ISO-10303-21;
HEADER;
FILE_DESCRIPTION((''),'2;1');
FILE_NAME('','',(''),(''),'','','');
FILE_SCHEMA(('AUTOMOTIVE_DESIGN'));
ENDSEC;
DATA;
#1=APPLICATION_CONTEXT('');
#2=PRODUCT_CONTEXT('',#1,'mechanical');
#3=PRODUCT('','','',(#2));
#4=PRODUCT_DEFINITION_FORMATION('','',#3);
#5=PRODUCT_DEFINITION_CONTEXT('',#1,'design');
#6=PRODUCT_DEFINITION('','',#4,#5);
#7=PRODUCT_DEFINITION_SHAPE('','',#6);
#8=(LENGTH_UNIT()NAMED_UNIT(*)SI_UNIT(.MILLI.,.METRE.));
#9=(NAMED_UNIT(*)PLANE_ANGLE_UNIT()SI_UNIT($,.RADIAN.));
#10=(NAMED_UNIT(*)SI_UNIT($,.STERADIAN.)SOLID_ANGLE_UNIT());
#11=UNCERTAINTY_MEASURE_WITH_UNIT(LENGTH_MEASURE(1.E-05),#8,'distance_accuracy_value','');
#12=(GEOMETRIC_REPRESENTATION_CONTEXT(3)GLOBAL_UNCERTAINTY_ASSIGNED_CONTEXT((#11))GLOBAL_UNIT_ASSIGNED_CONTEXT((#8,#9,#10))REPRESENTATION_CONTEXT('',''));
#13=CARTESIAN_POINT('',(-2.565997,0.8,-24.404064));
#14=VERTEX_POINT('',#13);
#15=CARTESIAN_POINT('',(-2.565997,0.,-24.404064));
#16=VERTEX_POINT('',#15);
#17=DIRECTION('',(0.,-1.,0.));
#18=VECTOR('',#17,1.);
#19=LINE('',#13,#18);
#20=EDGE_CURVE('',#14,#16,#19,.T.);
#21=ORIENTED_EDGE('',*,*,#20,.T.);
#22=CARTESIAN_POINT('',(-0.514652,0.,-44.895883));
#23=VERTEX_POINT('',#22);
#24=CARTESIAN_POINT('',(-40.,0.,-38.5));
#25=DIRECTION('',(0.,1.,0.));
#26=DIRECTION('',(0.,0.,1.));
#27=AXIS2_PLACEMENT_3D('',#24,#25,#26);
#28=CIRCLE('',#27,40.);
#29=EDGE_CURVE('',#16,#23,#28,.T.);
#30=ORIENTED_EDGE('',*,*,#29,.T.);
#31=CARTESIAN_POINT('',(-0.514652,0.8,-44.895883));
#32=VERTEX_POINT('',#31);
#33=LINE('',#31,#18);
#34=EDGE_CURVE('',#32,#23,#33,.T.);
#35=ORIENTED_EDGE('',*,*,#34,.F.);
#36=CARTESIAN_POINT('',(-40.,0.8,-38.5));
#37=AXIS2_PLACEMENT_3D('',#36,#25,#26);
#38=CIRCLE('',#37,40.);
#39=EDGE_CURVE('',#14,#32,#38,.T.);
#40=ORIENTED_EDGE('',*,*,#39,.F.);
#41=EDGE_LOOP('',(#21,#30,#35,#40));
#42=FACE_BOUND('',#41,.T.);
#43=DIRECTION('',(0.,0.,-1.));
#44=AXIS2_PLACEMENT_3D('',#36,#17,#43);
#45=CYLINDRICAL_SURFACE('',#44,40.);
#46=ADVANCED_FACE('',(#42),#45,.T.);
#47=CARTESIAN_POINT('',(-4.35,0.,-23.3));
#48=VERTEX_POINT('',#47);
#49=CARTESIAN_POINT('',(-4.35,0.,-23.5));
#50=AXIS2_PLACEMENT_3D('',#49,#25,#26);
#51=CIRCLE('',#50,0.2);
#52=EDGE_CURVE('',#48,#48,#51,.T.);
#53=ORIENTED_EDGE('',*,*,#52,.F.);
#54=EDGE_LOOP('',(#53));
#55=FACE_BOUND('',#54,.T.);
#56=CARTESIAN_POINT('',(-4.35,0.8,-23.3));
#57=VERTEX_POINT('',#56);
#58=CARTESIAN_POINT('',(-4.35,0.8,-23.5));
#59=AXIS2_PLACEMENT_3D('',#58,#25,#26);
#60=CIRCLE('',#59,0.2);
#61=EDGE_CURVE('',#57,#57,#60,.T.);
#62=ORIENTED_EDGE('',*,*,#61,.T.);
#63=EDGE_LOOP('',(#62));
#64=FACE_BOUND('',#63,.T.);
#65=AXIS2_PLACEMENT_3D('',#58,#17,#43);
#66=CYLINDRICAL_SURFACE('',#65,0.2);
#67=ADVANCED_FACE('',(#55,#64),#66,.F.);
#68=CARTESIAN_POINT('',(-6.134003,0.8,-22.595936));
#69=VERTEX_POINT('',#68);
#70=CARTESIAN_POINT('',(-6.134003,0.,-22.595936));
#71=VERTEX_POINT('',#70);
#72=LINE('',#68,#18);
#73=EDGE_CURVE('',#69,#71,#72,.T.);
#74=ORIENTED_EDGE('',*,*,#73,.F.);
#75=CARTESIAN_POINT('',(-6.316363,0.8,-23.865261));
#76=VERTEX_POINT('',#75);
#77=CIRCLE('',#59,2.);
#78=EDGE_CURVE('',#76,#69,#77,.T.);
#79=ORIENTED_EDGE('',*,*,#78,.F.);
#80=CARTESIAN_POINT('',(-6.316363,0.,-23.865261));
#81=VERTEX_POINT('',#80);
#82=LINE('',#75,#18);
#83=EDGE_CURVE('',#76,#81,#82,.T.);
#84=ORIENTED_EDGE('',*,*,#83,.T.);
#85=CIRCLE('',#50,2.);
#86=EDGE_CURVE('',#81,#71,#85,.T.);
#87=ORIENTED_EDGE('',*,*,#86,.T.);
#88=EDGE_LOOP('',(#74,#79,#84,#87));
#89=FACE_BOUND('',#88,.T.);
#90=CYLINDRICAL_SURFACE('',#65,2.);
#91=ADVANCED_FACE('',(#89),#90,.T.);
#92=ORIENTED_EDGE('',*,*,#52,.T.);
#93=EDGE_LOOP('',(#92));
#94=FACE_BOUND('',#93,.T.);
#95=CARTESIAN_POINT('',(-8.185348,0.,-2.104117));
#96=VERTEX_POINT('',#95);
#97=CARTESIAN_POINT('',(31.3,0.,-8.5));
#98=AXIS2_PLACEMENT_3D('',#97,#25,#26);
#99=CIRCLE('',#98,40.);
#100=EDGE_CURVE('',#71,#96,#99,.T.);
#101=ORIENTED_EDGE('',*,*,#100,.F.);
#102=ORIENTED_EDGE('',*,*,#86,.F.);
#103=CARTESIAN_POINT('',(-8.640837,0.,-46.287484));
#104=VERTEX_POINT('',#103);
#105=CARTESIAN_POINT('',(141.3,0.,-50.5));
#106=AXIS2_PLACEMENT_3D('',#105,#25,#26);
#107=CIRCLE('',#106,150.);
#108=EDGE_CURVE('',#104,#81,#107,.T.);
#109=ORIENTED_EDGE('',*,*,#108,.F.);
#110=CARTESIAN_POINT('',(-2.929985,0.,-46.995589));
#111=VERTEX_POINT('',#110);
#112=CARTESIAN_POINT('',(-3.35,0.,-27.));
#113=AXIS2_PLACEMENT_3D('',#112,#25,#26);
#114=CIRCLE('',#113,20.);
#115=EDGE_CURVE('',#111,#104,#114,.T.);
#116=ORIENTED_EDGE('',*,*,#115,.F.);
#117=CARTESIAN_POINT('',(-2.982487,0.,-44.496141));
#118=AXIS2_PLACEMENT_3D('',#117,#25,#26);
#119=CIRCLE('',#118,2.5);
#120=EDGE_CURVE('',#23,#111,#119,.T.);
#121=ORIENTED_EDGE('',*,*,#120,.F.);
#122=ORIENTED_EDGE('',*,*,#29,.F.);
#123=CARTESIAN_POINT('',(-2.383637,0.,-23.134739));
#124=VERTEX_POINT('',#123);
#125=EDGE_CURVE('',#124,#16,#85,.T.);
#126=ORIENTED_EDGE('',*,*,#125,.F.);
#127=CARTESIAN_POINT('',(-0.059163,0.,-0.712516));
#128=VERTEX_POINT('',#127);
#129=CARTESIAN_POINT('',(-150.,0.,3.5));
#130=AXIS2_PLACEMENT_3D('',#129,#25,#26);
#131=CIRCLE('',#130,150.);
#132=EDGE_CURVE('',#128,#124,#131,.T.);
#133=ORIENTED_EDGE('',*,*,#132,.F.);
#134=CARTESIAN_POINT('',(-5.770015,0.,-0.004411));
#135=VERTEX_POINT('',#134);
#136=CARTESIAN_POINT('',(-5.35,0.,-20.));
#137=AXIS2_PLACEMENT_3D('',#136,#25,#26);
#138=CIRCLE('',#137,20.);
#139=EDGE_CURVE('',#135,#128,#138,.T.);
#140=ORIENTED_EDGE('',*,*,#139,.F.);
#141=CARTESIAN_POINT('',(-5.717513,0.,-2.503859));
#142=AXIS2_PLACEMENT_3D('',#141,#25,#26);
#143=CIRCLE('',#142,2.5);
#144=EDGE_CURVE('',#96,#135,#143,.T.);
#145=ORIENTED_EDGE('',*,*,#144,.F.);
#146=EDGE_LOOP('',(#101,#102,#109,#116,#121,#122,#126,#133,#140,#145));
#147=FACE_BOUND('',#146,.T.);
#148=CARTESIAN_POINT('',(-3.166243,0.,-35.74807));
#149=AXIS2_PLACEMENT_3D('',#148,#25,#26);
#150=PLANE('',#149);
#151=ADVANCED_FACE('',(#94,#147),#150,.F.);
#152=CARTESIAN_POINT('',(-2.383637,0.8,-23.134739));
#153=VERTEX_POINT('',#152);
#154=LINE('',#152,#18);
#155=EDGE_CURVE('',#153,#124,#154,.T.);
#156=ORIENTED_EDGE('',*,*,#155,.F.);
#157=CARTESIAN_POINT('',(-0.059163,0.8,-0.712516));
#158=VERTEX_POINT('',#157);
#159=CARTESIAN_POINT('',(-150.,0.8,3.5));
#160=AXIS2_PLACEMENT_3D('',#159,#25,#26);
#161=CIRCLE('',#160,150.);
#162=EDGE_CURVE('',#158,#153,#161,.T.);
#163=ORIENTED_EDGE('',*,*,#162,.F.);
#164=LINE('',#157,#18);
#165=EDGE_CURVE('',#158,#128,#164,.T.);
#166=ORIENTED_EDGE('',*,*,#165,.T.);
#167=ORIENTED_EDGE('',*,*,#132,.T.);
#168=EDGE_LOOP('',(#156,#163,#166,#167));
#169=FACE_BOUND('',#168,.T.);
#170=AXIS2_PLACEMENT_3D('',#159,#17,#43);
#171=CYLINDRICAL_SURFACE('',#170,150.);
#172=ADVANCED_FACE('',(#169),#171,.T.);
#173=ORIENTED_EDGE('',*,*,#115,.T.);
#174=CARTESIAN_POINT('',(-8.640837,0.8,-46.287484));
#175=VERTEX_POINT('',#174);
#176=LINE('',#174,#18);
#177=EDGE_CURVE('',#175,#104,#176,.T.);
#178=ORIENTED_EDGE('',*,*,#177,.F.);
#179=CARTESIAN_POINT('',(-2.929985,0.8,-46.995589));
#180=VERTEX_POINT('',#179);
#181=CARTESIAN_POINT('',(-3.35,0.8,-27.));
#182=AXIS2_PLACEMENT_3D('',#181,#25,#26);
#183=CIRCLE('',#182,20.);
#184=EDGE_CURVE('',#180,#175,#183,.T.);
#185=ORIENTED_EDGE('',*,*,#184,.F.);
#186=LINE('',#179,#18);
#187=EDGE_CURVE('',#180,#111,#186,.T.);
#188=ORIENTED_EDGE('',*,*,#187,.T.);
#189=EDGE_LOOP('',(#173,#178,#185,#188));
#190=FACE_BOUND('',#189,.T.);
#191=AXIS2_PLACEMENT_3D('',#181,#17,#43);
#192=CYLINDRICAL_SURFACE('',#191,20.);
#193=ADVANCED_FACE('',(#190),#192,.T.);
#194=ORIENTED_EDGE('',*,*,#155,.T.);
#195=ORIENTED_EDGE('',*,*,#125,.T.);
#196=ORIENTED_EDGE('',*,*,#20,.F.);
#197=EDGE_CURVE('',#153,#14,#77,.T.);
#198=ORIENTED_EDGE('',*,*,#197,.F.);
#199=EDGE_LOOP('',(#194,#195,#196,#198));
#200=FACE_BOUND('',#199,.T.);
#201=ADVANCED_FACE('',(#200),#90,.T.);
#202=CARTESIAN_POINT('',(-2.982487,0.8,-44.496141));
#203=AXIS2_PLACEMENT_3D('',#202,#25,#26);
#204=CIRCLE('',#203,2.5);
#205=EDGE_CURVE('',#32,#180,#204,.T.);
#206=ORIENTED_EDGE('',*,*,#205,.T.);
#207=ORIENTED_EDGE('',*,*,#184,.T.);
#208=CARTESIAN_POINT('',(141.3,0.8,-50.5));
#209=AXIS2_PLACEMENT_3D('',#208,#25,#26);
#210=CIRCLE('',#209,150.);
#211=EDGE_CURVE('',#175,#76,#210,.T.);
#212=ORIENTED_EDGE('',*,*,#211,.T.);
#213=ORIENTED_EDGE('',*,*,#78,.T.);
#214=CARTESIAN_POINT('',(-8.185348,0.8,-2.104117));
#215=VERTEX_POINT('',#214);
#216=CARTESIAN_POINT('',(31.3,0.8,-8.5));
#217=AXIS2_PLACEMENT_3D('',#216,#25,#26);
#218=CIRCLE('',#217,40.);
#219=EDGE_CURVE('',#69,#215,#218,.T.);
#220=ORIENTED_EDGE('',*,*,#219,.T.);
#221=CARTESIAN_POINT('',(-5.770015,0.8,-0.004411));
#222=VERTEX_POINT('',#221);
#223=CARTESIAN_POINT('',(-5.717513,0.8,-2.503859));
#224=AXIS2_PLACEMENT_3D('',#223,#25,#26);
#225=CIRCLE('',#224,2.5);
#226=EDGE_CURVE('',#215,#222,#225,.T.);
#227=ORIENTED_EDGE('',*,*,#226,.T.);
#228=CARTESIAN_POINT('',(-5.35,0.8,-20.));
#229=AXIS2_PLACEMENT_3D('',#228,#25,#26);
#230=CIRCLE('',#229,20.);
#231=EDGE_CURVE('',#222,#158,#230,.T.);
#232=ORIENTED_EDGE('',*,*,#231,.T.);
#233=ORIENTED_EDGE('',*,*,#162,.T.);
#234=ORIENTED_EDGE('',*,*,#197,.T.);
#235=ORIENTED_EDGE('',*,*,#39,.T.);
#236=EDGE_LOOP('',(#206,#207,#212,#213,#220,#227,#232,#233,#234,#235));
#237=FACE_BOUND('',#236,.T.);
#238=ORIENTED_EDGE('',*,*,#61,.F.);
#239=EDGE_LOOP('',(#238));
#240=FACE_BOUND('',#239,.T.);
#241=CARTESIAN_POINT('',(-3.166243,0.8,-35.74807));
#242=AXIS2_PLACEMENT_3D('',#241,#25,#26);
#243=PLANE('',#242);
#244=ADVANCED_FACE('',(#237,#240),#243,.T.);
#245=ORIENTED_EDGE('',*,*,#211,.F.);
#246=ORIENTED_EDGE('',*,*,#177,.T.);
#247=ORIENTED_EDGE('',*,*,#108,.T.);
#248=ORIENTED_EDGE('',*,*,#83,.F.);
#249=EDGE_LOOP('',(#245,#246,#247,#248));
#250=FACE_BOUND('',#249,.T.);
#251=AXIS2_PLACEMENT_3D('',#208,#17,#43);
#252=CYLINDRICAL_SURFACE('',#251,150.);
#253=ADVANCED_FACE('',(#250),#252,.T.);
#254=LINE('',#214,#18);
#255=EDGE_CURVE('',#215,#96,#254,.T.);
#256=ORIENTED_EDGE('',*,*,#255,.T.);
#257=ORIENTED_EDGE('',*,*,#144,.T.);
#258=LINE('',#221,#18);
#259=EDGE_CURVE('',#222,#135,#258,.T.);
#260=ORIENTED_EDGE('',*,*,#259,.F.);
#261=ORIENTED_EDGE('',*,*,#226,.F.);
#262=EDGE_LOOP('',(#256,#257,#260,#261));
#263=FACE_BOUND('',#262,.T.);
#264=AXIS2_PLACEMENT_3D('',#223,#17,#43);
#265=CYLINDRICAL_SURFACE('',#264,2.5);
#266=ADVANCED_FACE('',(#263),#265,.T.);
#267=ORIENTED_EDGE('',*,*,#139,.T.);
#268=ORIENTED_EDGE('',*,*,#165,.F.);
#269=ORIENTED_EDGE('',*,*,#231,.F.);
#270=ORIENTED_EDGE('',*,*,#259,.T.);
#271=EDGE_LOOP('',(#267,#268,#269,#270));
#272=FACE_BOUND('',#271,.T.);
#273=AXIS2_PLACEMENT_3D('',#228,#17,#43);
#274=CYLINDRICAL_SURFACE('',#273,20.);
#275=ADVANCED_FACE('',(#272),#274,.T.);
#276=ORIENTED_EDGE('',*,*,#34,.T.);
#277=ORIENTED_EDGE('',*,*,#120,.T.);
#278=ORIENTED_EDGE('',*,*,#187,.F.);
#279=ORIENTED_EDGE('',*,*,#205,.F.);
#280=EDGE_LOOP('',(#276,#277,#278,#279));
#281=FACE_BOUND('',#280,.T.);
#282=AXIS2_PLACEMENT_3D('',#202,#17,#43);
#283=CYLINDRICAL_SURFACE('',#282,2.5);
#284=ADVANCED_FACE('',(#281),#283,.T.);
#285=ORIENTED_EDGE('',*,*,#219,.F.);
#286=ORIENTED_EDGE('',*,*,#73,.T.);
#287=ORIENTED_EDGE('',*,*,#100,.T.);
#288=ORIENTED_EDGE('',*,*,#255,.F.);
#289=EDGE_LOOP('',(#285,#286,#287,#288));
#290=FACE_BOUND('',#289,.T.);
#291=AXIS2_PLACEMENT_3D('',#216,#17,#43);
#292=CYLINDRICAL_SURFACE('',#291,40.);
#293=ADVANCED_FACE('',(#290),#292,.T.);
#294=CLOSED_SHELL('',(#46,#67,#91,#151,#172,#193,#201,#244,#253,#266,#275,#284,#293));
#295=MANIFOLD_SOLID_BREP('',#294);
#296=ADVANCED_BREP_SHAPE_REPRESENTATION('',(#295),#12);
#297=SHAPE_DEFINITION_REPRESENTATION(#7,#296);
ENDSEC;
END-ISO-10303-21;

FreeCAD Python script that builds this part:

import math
import FreeCAD as App
import Part
import Sketcher
Q = App.Units.Quantity

doc = App.newDocument("Part")
body = doc.addObject("PartDesign::Body", "Body")

# Sketch on XZ plane
sketch1 = body.newObject("Sketcher::SketchObject", "Sketch")
sketch1.AttachmentSupport = (doc.getObject("XZ_Plane"), [""])
sketch1.MapMode = "FlatFace"
sketch1.addGeometry(Part.ArcOfCircle(Part.Circle(App.Vector(-4.35, -23.5, 0), App.Vector(0, 0, 1), 2), math.radians(-27), math.radians(11)), False)
sketch1.addGeometry(Part.ArcOfCircle(Part.Circle(App.Vector(-40, -38.5, 0), App.Vector(0, 0, 1), 40), math.radians(-9), math.radians(21)), False)
sketch1.addGeometry(Part.ArcOfCircle(Part.Circle(App.Vector(-2.98, -44.5, 0), App.Vector(0, 0, 1), 2.5), math.radians(-89), math.radians(-9)), False)
sketch1.addGeometry(Part.ArcOfCircle(Part.Circle(App.Vector(-3.35, -27, 0), App.Vector(0, 0, 1), 20), math.radians(-105.34), math.radians(-88.8)), False)
sketch1.addGeometry(Part.ArcOfCircle(Part.Circle(App.Vector(141.3, -50.5, 0), App.Vector(0, 0, 1), 150), math.radians(169.77), math.radians(178.39)), False)
sketch1.addGeometry(Part.ArcOfCircle(Part.Circle(App.Vector(-4.35, -23.5, 0), App.Vector(0, 0, 1), 2), math.radians(153), math.radians(191)), False)
sketch1.addGeometry(Part.ArcOfCircle(Part.Circle(App.Vector(31.3, -8.5, 0), App.Vector(0, 0, 1), 40), math.radians(171), math.radians(201)), False)
sketch1.addGeometry(Part.ArcOfCircle(Part.Circle(App.Vector(-5.72, -2.5, 0), App.Vector(0, 0, 1), 2.5), math.radians(91), math.radians(171)), False)
sketch1.addGeometry(Part.ArcOfCircle(Part.Circle(App.Vector(-5.35, -20, 0), App.Vector(0, 0, 1), 20), math.radians(74.66), math.radians(91.2)), False)
sketch1.addGeometry(Part.ArcOfCircle(Part.Circle(App.Vector(-150, 3.5, 0), App.Vector(0, 0, 1), 150), math.radians(-10.23), math.radians(-1.61)), False)
sketch1.addGeometry(Part.Circle(App.Vector(-4.35, -23.5, 0), App.Vector(0, 0, 1), 0.2), False)
sketch1.addConstraint(Sketcher.Constraint("Coincident", 0, 1, 1, 2))
sketch1.addConstraint(Sketcher.Constraint("Tangent", 1, 1, 2, 2))
sketch1.addConstraint(Sketcher.Constraint("Tangent", 2, 1, 3, 2))
sketch1.addConstraint(Sketcher.Constraint("Coincident", 3, 1, 4, 2))
sketch1.addConstraint(Sketcher.Constraint("Coincident", 4, 1, 5, 2))
sketch1.addConstraint(Sketcher.Constraint("Coincident", 5, 1, 6, 2))
sketch1.addConstraint(Sketcher.Constraint("Tangent", 6, 1, 7, 2))
sketch1.addConstraint(Sketcher.Constraint("Tangent", 7, 1, 8, 2))
sketch1.addConstraint(Sketcher.Constraint("Coincident", 8, 1, 9, 2))
sketch1.addConstraint(Sketcher.Constraint("Coincident", 9, 1, 0, 2))
sketch1.addConstraint(Sketcher.Constraint("Coincident", 5, 3, 0, 3))
sketch1.addConstraint(Sketcher.Constraint("Coincident", 10, 3, 0, 3))
sketch1.addConstraint(Sketcher.Constraint("Equal", 0, 5))
sketch1.addConstraint(Sketcher.Constraint("Equal", 1, 6))
sketch1.addConstraint(Sketcher.Constraint("Equal", 2, 7))
sketch1.addConstraint(Sketcher.Constraint("Equal", 3, 8))
sketch1.addConstraint(Sketcher.Constraint("Equal", 4, 9))
sketch1.addConstraint(Sketcher.Constraint("Radius", 0, Q("2 mm")))
sketch1.addConstraint(Sketcher.Constraint("Radius", 1, Q("40 mm")))
sketch1.addConstraint(Sketcher.Constraint("Radius", 3, Q("20 mm")))
sketch1.addConstraint(Sketcher.Constraint("Radius", 4, Q("150 mm")))
sketch1.addConstraint(Sketcher.Constraint("Diameter", 10, Q("0.4 mm")))
sketch1.addConstraint(Sketcher.Constraint("Radius", 2, Q("2.5 mm")))
sketch1.addConstraint(Sketcher.Constraint("DistanceX", 1, 3, -1, 1, Q("40 mm")))
sketch1.addConstraint(Sketcher.Constraint("DistanceY", 3, 3, -1, 1, Q("27 mm")))
sketch1.addConstraint(Sketcher.Constraint("DistanceY", 8, 3, -1, 1, Q("20 mm")))
sketch1.addConstraint(Sketcher.Constraint("DistanceX", 9, 3, -1, 1, Q("150 mm")))
sketch1.addConstraint(Sketcher.Constraint("DistanceY", 1, 3, 0, 3, Q("15 mm")))
sketch1.addConstraint(Sketcher.Constraint("DistanceX", 0, 3, 3, 3, Q("1 mm")))
sketch1.addConstraint(Sketcher.Constraint("DistanceY", 4, 3, 0, 3, Q("27 mm")))
sketch1.addConstraint(Sketcher.Constraint("DistanceY", 5, 3, 6, 3, Q("15 mm")))
sketch1.addConstraint(Sketcher.Constraint("DistanceX", 8, 3, 0, 3, Q("1 mm")))
sketch1.addConstraint(Sketcher.Constraint("DistanceY", 1, 3, 9, 3, Q("42 mm")))
sketch1.addConstraint(Sketcher.Constraint("DistanceY", 0, 3, -1, 1, Q("23.5 mm")))
sketch1.addConstraint(Sketcher.Constraint("DistanceX", -1, 1, 4, 3, Q("141.3 mm")))
sketch1.addConstraint(Sketcher.Constraint("DistanceX", -1, 1, 6, 3, Q("31.3 mm")))
sketch1.addConstraint(Sketcher.Constraint("DistanceX", 0, 3, -1, 1, Q("4.35 mm")))
pad1 = body.newObject("PartDesign::Pad", "Pad")
pad1.Profile = sketch1
pad1.Length = 0.8
pad1.Reversed = True

doc.recompute()
